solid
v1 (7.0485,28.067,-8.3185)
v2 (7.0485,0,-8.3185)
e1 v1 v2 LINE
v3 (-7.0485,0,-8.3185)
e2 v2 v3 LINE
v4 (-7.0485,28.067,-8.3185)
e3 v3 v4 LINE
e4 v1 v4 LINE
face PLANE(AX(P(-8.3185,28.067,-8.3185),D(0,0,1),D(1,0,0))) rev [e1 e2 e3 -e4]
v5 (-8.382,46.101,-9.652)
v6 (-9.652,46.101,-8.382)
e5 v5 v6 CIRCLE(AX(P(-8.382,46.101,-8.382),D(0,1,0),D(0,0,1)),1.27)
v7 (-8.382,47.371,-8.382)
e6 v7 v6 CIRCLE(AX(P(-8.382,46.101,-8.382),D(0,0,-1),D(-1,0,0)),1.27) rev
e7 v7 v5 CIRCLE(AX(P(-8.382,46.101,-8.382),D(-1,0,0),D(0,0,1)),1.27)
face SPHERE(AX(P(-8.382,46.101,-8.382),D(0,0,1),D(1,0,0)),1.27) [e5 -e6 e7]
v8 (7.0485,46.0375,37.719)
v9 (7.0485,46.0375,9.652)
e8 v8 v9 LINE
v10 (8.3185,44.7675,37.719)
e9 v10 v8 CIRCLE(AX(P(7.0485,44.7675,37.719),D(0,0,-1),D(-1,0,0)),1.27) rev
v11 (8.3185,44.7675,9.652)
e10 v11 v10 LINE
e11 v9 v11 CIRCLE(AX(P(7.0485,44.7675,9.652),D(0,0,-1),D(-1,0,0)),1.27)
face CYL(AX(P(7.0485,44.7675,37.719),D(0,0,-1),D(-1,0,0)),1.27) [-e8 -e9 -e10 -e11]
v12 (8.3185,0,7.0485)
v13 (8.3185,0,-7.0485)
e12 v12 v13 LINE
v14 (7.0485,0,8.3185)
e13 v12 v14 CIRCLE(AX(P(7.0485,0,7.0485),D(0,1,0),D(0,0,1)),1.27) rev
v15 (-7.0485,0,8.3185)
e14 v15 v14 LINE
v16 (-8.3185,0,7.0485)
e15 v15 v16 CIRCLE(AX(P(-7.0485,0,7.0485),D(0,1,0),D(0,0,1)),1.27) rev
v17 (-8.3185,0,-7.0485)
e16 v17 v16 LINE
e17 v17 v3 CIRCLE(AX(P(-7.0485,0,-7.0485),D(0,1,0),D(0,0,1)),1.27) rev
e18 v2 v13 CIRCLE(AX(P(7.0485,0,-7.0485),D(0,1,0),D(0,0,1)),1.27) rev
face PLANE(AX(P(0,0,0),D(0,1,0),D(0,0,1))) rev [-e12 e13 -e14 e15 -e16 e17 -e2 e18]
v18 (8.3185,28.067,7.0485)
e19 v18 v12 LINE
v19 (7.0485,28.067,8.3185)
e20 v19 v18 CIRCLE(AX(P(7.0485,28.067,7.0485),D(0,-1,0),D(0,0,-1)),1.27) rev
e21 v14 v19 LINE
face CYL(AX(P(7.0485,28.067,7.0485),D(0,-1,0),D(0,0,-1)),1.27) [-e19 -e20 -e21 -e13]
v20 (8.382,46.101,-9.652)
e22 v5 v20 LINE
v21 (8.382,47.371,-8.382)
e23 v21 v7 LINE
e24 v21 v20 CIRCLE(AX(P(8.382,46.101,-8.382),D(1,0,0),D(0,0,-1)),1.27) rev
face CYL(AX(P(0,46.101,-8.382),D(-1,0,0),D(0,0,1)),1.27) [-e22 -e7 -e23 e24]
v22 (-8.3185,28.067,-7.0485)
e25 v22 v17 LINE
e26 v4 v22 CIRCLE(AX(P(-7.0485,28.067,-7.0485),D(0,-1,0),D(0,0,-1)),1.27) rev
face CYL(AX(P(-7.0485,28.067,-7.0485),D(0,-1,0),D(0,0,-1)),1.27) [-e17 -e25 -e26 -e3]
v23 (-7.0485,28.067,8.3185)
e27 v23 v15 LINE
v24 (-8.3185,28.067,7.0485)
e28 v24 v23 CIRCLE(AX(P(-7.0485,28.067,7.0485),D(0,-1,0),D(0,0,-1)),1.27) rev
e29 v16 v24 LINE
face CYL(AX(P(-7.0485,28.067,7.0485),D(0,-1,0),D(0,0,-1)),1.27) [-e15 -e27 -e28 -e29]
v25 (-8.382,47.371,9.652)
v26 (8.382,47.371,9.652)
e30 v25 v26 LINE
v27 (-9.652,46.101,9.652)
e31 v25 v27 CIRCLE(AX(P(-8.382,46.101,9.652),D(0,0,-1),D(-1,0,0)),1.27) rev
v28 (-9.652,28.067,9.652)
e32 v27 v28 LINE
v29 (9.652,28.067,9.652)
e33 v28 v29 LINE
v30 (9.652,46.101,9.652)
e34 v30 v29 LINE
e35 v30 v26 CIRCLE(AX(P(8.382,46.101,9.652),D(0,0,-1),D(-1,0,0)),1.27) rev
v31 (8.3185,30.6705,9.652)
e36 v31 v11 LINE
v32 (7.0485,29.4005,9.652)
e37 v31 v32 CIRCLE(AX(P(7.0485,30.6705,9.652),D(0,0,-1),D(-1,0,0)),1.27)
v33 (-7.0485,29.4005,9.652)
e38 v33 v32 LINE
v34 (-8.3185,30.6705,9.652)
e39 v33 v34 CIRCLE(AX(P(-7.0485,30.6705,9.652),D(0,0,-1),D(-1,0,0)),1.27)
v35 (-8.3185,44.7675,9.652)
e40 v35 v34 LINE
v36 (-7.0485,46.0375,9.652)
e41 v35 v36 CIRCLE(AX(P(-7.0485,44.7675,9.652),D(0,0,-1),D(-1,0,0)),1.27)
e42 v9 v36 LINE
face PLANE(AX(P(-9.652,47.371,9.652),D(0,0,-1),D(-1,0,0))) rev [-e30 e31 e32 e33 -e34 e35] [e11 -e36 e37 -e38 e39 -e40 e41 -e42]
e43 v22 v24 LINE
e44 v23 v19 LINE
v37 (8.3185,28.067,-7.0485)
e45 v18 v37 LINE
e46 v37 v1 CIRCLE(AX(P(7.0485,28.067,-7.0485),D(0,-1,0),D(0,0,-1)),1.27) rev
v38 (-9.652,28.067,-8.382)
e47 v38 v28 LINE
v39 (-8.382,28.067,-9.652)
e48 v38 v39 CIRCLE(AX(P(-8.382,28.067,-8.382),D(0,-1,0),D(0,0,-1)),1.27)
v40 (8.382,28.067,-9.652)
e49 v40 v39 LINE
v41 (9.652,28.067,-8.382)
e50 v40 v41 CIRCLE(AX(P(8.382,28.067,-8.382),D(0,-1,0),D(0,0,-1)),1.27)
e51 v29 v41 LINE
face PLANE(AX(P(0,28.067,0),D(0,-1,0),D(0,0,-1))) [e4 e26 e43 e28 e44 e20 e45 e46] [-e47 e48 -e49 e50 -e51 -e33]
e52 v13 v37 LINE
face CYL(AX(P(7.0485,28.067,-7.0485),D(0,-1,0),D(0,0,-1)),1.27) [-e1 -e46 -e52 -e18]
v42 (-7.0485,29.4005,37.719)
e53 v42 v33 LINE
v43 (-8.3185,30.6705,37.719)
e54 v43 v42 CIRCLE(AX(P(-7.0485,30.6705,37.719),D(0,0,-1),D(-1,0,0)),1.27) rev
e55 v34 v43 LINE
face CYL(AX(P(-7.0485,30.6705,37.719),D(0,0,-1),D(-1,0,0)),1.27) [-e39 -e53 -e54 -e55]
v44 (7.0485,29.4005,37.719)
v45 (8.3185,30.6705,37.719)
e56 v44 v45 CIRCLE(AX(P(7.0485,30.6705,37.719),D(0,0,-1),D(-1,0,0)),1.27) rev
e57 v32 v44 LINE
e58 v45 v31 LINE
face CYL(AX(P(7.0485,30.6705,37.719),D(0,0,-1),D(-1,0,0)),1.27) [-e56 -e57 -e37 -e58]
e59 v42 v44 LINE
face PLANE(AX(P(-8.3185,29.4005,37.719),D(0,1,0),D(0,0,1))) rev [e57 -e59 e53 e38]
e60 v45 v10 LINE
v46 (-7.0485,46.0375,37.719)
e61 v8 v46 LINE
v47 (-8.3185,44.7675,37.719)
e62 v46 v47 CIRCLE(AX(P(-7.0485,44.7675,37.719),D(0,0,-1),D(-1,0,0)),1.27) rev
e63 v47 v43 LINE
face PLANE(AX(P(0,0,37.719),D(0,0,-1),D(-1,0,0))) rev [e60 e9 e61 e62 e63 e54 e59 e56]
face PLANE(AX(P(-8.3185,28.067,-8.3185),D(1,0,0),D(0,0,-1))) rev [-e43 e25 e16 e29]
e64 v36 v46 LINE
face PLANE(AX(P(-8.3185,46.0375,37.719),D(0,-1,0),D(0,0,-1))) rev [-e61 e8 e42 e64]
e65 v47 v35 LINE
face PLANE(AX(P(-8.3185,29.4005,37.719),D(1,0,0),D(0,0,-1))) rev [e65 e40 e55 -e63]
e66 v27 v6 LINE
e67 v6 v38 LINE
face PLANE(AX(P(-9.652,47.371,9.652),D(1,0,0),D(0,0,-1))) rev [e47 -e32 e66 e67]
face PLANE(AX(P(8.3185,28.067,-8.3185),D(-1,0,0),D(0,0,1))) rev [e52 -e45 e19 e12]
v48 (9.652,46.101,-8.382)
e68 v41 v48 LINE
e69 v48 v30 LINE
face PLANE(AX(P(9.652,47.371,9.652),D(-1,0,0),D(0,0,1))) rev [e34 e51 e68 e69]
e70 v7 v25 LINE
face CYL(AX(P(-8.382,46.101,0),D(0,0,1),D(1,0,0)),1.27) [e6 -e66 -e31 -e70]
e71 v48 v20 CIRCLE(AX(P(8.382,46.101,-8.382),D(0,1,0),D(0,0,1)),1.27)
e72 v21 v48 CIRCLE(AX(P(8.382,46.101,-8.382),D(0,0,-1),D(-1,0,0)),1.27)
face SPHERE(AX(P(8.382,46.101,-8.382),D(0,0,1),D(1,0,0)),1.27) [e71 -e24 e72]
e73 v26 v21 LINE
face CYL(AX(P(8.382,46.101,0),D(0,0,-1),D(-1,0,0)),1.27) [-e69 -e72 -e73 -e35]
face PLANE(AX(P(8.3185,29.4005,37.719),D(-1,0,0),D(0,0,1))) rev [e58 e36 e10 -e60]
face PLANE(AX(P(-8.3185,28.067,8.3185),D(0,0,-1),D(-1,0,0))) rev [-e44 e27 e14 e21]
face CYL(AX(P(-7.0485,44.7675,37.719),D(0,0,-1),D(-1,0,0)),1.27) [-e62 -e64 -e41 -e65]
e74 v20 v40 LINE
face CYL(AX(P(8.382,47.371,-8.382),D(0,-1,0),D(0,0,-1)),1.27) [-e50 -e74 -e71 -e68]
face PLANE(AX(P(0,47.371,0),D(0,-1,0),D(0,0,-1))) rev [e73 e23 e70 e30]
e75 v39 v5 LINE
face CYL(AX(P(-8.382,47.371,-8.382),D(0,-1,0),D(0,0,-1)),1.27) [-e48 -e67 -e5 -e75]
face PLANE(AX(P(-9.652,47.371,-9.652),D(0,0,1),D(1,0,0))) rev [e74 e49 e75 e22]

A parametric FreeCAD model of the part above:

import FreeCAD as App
import Part
import Sketcher
from FreeCAD import Vector
Q = App.Units.Quantity


def edges_at(feature, points):
    """Names of the edges that pass closest to the given points."""
    edges = feature.Shape.Edges
    near = lambda p: min(range(len(edges)), key=lambda i: edges[i].distToShape(Part.Vertex(*p))[0])
    return sorted({f"Edge{near(p) + 1}" for p in points})


def add_polygon(sketch, points):
    """Adds a closed chain of lines whose ends are joined by coincident constraints."""
    first, n = sketch.GeometryCount, len(points)
    for a, b in zip(points, points[1:] + points[:1]):
        sketch.addGeometry(Part.LineSegment(App.Vector(*a, 0), App.Vector(*b, 0)), False)
    for i in range(n):
        sketch.addConstraint(Sketcher.Constraint("Coincident", first + i, 2, first + (i + 1) % n, 1))

doc = App.newDocument("Part")
body = doc.addObject("PartDesign::Body", "Body")

sketch1 = body.newObject("Sketcher::SketchObject", "Sketch")
sketch1.AttachmentSupport = (doc.getObject("XZ_Plane"), [""])
sketch1.MapMode = "FlatFace"
add_polygon(sketch1, [(-8.3185, -8.3185), (-8.3185, 8.3185), (8.3185, 8.3185), (8.3185, -8.3185)])
sketch1.addConstraint([
    Sketcher.Constraint("Vertical", 0),
    Sketcher.Constraint("Horizontal", 1),
    Sketcher.Constraint("Vertical", 2),
    Sketcher.Constraint("Horizontal", 3),
    Sketcher.Constraint("Symmetric", 0, 2, 2, 2, -1, 1),
    Sketcher.Constraint("Equal", 3, 0),
    Sketcher.Constraint("DistanceX", 1, 1, 1, 2, Q("0.655 in")),
])
pad1 = body.newObject("PartDesign::Pad", "Pad")
pad1.Profile = sketch1
pad1.Length = Q("1.105 in")
pad1.Reversed = True

sketch2 = body.newObject("Sketcher::SketchObject", "Sketch001")
sketch2.AttachmentSupport = (doc.getObject("XZ_Plane"), [""])
sketch2.MapMode = "FlatFace"
sketch2.AttachmentOffset = App.Placement(Vector(0, 0, -1.105 * 25.4), App.Rotation())
add_polygon(sketch2, [(-9.652, -9.652), (-9.652, 9.652), (9.652, 9.652), (9.652, -9.652)])
sketch2.addConstraint([
    Sketcher.Constraint("Vertical", 0),
    Sketcher.Constraint("Horizontal", 1),
    Sketcher.Constraint("Vertical", 2),
    Sketcher.Constraint("Horizontal", 3),
    Sketcher.Constraint("Symmetric", 0, 2, 2, 2, -1, 1),
    Sketcher.Constraint("Equal", 3, 0),
    Sketcher.Constraint("DistanceX", 1, 1, 1, 2, Q("0.76 in")),
])
pad2 = body.newObject("PartDesign::Pad", "Pad001")
pad2.Profile = sketch2
pad2.Length = Q("0.76 in")
pad2.Reversed = True

sketch3 = body.newObject("Sketcher::SketchObject", "Sketch002")
sketch3.AttachmentSupport = (doc.getObject("XY_Plane"), [""])
sketch3.MapMode = "FlatFace"
sketch3.AttachmentOffset = App.Placement(Vector(0, 0, 0.38 * 25.4), App.Rotation())
add_polygon(sketch3, [(-8.3185, 46.0375), (-8.3185, 29.4005), (8.3185, 29.4005), (8.3185, 46.0375)])
sketch3.addConstraint([
    Sketcher.Constraint("Vertical", 0),
    Sketcher.Constraint("Horizontal", 1),
    Sketcher.Constraint("Vertical", 2),
    Sketcher.Constraint("Horizontal", 3),
    Sketcher.Constraint("Equal", 3, 0),
    Sketcher.Constraint("DistanceX", 1, 1, 1, 2, Q("0.655 in")),
    Sketcher.Constraint("DistanceY", -1, 1, 2, 2, Q("1.8125 in")),
    Sketcher.Constraint("DistanceX", 0, 2, -1, 1, Q("0.3275 in")),
])
pad3 = body.newObject("PartDesign::Pad", "Pad002")
pad3.Profile = sketch3
pad3.Length = Q("1.105 in")
doc.recompute()

fillet = body.newObject("PartDesign::Fillet", "Fillet")
fillet.Base = (pad3, edges_at(pad3, [
    (9.652, 37.719, -9.652),
    (-9.652, 37.719, -9.652),
    (9.652, 47.371, 0),
    (0, 47.371, -9.652),
    (-9.652, 47.371, 0),
    (8.319, 29.401, 23.686),
    (8.319, 46.038, 23.686),
    (-8.319, 46.038, 23.686),
    (-8.319, 29.401, 23.686),
    (8.319, 14.034, 8.319),
    (-8.319, 14.034, 8.319),
    (-8.319, 14.034, -8.319),
    (8.319, 14.034, -8.319),
]))
fillet.Radius = Q("0.05 in")

doc.recompute()
